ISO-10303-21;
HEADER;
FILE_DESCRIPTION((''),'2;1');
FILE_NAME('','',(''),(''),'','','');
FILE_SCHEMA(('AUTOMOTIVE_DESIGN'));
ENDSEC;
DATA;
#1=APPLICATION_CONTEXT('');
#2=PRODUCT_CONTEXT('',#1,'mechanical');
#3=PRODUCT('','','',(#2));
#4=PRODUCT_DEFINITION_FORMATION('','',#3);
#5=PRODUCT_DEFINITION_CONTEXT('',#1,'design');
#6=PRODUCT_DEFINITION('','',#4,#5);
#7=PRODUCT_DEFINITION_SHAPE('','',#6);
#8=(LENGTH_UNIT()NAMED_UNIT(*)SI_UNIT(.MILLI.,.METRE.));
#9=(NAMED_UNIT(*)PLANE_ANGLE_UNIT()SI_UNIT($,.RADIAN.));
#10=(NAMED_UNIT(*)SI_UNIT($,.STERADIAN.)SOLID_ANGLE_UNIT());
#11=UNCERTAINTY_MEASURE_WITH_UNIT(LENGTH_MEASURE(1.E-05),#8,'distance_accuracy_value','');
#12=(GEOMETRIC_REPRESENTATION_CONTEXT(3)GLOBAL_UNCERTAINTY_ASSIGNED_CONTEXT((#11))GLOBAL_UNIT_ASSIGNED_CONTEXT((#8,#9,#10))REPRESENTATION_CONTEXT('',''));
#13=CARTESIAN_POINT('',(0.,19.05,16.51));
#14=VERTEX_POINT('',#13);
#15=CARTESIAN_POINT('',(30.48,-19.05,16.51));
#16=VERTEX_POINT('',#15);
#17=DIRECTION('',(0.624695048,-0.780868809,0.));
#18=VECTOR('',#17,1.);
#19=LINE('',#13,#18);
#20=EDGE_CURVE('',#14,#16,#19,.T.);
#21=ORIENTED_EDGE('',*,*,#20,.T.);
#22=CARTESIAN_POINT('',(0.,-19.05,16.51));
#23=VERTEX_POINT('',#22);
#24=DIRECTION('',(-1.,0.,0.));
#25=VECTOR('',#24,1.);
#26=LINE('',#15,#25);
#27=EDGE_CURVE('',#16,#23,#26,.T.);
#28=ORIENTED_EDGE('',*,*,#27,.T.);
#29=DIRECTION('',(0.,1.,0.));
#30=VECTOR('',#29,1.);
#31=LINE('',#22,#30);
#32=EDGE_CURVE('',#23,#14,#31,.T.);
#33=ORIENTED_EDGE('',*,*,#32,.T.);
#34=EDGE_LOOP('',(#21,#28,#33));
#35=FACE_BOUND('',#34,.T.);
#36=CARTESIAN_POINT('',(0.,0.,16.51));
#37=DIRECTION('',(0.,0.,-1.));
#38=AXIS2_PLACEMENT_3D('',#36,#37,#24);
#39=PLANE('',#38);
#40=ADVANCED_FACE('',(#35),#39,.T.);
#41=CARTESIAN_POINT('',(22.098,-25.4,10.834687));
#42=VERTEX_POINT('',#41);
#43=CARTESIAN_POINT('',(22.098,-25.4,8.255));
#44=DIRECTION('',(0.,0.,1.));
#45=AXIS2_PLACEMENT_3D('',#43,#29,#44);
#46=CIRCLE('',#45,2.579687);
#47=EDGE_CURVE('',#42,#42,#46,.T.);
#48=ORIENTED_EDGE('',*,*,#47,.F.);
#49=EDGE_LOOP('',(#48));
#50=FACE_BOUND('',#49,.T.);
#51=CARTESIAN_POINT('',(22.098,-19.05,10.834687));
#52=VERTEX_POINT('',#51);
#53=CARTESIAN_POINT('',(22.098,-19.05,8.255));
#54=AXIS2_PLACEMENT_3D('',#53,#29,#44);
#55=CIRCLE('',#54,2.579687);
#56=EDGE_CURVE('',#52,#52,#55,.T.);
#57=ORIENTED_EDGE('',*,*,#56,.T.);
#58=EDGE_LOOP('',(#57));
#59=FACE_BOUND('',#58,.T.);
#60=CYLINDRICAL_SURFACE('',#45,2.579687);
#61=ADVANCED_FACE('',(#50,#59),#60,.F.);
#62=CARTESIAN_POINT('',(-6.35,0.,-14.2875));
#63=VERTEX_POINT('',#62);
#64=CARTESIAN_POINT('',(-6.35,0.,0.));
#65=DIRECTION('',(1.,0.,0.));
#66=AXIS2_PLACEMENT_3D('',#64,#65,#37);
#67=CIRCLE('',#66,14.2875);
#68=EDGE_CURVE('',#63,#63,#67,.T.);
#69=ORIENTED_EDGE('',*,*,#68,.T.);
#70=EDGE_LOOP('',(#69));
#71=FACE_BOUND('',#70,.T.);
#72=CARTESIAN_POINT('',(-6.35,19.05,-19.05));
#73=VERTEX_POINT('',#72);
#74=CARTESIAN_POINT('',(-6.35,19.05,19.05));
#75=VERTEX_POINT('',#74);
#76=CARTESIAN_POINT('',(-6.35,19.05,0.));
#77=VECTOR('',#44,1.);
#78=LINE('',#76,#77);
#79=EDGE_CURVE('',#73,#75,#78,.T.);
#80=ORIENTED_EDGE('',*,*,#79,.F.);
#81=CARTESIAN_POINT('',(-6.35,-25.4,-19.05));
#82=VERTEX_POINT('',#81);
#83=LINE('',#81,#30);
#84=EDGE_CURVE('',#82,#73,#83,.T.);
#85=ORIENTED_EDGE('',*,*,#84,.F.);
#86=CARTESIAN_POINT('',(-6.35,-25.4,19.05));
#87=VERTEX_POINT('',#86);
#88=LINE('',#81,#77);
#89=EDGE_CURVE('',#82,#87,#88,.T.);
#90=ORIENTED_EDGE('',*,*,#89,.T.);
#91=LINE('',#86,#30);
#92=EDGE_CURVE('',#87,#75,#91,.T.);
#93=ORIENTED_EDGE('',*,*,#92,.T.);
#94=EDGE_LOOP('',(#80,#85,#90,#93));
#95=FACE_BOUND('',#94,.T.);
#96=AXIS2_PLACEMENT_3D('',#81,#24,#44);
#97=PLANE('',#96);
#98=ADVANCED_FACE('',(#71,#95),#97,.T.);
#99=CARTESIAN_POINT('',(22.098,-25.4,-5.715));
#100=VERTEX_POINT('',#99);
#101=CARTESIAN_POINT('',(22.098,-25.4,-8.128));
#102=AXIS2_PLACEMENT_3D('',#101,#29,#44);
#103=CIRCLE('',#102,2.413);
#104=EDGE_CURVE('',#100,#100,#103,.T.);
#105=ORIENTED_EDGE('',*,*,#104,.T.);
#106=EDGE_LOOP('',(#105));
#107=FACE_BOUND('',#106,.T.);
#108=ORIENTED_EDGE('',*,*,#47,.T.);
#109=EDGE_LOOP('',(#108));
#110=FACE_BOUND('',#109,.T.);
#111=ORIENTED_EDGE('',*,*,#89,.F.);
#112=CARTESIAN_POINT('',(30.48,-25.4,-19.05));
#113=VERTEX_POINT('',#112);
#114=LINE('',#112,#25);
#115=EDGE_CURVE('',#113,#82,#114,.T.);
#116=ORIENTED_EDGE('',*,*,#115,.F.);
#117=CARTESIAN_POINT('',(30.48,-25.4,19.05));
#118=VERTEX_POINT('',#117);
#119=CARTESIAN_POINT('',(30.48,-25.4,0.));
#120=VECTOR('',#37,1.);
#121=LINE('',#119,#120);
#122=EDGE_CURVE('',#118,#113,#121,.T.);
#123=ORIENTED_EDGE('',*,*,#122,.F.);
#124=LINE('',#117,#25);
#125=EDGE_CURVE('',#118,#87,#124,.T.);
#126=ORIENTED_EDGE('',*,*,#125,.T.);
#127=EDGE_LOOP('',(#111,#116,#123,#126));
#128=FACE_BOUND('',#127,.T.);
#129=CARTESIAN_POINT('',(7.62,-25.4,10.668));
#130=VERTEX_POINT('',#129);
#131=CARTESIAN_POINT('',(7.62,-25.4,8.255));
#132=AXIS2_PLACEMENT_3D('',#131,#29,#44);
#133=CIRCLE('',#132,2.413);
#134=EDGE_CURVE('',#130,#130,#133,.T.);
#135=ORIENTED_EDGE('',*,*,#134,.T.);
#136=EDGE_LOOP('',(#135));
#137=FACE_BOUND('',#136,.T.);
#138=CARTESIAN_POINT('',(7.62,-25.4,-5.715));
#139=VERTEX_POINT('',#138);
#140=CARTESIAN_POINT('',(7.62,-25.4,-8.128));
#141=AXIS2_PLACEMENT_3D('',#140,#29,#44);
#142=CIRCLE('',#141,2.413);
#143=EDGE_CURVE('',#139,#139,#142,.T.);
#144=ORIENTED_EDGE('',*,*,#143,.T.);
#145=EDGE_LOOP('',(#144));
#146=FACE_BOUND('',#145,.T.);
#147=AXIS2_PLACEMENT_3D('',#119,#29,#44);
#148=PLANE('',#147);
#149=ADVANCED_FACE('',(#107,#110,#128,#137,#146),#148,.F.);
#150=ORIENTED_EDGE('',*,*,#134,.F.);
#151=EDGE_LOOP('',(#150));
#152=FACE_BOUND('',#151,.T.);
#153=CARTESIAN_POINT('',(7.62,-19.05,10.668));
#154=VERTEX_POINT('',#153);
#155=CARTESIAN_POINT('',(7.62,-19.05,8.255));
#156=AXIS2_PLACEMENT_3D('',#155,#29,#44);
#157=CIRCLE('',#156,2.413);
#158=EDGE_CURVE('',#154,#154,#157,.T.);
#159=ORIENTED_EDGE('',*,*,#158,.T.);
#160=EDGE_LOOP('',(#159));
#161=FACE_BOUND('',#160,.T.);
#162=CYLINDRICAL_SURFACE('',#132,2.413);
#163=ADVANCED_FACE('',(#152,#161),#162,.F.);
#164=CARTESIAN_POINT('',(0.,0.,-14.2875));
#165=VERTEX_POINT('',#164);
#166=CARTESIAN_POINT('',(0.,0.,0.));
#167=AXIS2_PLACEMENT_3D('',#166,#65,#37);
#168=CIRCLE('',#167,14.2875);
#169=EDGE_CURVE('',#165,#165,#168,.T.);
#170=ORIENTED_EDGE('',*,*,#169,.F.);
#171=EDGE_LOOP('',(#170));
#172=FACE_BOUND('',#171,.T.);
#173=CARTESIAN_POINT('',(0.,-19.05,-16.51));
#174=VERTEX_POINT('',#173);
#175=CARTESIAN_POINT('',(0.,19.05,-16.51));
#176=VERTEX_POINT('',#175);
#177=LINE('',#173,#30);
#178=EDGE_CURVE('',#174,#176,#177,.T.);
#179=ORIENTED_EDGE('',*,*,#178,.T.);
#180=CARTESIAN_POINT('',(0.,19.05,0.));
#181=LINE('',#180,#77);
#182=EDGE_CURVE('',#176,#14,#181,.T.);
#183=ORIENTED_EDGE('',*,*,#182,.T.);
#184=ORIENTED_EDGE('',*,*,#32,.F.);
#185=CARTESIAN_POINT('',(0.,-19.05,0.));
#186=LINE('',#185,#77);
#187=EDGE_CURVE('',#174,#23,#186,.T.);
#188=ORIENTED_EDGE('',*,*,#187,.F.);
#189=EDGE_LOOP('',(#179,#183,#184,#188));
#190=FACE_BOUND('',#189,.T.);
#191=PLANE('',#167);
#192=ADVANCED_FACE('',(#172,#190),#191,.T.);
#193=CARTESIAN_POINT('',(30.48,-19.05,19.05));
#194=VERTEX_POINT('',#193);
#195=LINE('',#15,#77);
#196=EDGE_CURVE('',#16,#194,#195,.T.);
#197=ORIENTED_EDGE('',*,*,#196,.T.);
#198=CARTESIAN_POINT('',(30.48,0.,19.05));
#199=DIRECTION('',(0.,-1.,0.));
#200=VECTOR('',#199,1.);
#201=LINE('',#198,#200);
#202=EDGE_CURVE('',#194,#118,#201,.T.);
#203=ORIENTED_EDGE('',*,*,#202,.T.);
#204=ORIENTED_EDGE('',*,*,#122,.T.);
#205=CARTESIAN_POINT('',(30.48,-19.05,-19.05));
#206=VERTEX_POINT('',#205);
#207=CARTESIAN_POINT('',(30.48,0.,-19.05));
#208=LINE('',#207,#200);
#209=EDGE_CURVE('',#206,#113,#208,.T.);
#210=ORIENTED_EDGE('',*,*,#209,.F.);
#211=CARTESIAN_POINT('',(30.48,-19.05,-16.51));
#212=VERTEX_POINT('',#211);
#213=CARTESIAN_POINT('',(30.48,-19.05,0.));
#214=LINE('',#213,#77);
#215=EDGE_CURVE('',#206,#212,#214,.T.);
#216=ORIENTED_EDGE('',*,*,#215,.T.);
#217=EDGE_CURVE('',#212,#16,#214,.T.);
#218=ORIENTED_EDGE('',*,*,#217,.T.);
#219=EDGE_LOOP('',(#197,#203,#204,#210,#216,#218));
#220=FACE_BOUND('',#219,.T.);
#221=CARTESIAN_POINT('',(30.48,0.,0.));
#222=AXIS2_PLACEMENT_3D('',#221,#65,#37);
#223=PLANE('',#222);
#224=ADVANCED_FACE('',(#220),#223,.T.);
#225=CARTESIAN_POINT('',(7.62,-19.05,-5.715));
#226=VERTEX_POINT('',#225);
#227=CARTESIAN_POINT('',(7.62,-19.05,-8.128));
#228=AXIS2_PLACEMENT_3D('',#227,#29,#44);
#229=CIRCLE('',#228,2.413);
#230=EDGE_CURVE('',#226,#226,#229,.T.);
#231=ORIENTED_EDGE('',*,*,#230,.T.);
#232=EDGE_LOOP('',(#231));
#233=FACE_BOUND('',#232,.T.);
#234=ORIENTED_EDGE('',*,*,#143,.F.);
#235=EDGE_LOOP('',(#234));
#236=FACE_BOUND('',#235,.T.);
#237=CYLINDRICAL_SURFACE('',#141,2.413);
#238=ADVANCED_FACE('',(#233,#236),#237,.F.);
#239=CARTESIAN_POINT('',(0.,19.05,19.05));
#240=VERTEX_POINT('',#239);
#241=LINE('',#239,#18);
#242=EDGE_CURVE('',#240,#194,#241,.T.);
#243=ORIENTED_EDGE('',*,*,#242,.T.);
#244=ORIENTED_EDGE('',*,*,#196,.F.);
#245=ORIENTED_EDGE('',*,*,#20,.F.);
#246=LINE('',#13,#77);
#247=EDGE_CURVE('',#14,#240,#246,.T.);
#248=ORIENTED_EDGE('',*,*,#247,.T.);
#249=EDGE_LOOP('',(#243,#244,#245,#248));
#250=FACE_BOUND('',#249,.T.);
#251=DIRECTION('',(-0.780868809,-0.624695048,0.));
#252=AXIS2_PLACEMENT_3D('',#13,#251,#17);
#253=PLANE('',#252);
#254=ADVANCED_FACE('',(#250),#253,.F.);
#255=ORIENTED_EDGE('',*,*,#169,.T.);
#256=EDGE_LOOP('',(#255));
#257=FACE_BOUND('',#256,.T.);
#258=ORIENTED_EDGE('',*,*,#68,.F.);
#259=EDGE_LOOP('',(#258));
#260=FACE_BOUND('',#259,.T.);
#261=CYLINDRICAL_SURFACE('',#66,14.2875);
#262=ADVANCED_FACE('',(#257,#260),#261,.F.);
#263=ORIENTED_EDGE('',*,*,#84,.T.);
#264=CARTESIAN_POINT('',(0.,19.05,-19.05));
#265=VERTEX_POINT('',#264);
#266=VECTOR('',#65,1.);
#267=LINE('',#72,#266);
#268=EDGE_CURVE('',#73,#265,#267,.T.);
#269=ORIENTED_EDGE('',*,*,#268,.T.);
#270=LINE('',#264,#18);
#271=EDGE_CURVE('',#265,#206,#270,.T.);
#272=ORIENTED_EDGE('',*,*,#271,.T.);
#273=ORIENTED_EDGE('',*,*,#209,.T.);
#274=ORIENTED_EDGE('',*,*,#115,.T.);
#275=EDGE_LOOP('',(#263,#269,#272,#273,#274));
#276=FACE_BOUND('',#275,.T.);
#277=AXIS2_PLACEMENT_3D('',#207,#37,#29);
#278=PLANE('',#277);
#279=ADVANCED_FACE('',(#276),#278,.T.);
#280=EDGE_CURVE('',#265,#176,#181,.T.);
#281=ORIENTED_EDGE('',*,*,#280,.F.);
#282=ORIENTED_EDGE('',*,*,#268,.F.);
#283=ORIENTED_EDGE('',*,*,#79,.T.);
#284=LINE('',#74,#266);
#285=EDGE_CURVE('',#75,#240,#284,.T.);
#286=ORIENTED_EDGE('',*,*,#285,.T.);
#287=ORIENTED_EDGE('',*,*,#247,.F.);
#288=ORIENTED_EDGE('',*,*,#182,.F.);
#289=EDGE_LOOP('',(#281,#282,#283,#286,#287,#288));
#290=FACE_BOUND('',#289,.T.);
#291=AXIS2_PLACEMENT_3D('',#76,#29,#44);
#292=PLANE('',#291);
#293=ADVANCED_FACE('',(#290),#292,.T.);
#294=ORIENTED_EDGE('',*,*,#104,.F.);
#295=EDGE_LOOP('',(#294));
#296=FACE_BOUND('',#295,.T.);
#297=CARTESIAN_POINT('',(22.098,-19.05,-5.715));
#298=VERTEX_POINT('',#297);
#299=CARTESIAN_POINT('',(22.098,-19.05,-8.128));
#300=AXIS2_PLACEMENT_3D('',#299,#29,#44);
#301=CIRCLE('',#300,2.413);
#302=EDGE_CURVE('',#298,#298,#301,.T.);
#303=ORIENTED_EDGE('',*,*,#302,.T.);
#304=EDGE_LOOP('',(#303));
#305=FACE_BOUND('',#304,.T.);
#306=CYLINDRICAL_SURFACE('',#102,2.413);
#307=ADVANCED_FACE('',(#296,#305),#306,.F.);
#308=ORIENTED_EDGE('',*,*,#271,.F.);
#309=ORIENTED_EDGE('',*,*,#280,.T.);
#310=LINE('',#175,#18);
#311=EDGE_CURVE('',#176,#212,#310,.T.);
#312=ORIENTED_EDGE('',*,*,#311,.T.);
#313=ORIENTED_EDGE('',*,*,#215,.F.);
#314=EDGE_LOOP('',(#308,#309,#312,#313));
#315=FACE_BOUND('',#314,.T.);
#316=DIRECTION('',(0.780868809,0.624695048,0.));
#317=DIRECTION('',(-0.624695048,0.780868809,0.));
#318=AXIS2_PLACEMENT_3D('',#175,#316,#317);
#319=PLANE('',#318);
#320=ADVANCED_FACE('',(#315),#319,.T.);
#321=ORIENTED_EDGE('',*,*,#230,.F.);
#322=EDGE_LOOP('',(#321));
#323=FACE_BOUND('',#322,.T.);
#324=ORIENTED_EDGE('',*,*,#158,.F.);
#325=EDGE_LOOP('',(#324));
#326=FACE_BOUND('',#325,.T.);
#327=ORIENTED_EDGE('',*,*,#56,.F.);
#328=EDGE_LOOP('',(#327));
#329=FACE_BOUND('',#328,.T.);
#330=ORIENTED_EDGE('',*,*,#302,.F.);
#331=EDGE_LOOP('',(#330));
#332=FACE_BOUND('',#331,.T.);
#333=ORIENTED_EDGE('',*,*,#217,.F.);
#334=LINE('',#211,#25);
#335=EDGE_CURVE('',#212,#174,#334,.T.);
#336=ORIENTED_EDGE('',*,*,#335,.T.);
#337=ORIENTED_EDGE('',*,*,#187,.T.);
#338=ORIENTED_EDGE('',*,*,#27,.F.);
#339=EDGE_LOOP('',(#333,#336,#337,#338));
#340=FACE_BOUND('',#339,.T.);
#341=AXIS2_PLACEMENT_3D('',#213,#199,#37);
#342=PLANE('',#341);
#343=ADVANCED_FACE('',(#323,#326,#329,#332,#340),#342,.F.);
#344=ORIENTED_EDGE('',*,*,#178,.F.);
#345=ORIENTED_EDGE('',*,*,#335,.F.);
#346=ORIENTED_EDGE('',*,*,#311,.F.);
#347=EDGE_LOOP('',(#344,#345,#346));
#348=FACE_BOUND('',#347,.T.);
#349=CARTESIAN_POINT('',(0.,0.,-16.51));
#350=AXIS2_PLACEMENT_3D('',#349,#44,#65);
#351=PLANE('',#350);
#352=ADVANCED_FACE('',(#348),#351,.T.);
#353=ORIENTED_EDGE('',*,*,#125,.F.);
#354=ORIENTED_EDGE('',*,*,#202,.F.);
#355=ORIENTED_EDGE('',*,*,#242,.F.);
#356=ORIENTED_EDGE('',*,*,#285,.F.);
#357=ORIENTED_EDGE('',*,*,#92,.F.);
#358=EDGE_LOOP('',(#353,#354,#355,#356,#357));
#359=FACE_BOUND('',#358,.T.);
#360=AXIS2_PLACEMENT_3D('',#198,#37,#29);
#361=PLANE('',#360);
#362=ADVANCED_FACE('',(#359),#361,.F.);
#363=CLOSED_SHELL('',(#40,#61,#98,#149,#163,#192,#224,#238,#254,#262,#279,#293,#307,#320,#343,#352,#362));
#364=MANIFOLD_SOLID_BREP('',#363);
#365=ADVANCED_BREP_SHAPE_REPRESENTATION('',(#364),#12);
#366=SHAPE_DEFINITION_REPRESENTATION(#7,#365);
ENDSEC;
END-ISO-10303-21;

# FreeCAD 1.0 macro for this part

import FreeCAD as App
import Part
import Sketcher
Q = App.Units.Quantity


def add_polygon(sketch, points):
    """Adds a closed chain of lines whose ends are joined by coincident constraints."""
    first, n = sketch.GeometryCount, len(points)
    for a, b in zip(points, points[1:] + points[:1]):
        sketch.addGeometry(Part.LineSegment(App.Vector(*a, 0), App.Vector(*b, 0)), False)
    for i in range(n):
        sketch.addConstraint(Sketcher.Constraint("Coincident", first + i, 2, first + (i + 1) % n, 1))

doc = App.newDocument("Part")
body = doc.addObject("PartDesign::Body", "Body")

sketch1 = body.newObject("Sketcher::SketchObject", "Sketch")
sketch1.AttachmentSupport = (doc.getObject("YZ_Plane"), [""])
sketch1.MapMode = "FlatFace"
add_polygon(sketch1, [(-19, 19), (-25, 19), (-25, -19), (-19, -19)])
sketch1.addConstraint(Sketcher.Constraint("Horizontal", 0))
sketch1.addConstraint(Sketcher.Constraint("Vertical", 1))
sketch1.addConstraint(Sketcher.Constraint("Horizontal", 2))
sketch1.addConstraint(Sketcher.Constraint("Vertical", 3))
sketch1.addConstraint(Sketcher.Constraint("DistanceY", 1, 2, 1, 1, Q("1.5 in")))
sketch1.addConstraint(Sketcher.Constraint("DistanceX", 0, 2, -1, 1, Q("1 in")))
sketch1.addConstraint(Sketcher.Constraint("DistanceX", 0, 2, 0, 1, Q("0.25 in")))
sketch1.addConstraint(Sketcher.Constraint("DistanceY", -1, 1, 0, 2, Q("0.75 in")))
pad1 = body.newObject("PartDesign::Pad", "Pad")
pad1.Profile = sketch1
pad1.Length = Q("1.2 in")
body2 = doc.addObject("PartDesign::Body", "Body001")

sketch2 = body2.newObject("Sketcher::SketchObject", "Sketch001")
sketch2.AttachmentSupport = (doc.getObject("YZ_Plane001"), [""])
sketch2.MapMode = "FlatFace"
add_polygon(sketch2, [(19, 19), (-19, 19), (-19, -19), (19, -19)])
sketch2.addGeometry(Part.Circle(App.Vector(0, 0, 0), App.Vector(0, 0, 1), 14), False)
sketch2.addConstraint(Sketcher.Constraint("Horizontal", 0))
sketch2.addConstraint(Sketcher.Constraint("Vertical", 1))
sketch2.addConstraint(Sketcher.Constraint("Horizontal", 2))
sketch2.addConstraint(Sketcher.Constraint("Vertical", 3))
sketch2.addConstraint(Sketcher.Constraint("Coincident", 4, 3, -1, 1))
sketch2.addConstraint(Sketcher.Constraint("Symmetric", 0, 2, 2, 2, -1, 1))
sketch2.addConstraint(Sketcher.Constraint("Equal", 2, 1))
sketch2.addConstraint(Sketcher.Constraint("Diameter", 4, Q("1.125 in")))
sketch2.addConstraint(Sketcher.Constraint("DistanceX", 0, 2, 0, 1, Q("1.5 in")))
pad2 = body2.newObject("PartDesign::Pad", "Pad001")
pad2.Profile = sketch2
pad2.Length = Q("0.25 in")
pad2.Reversed = True
body.AllowCompound = True
doc.recompute()

boolean = body.newObject("PartDesign::Boolean", "Boolean")
boolean.Type = "Fuse"
boolean.addObjects([body2])

sketch3 = body.newObject("Sketcher::SketchObject", "Sketch002")
sketch3.AttachmentSupport = (doc.getObject("XZ_Plane"), [""])
sketch3.MapMode = "FlatFace"
sketch3.AttachmentOffset = App.Placement(App.Vector(0, 0, 0.75 * 25.4), App.Rotation())
add_polygon(sketch3, [(-6, 19), (-6, -19), (0, -19), (0, 19)])
sketch3.addConstraint(Sketcher.Constraint("Vertical", 0))
sketch3.addConstraint(Sketcher.Constraint("Horizontal", 1))
sketch3.addConstraint(Sketcher.Constraint("Vertical", 2))
sketch3.addConstraint(Sketcher.Constraint("Horizontal", 3))
sketch3.addConstraint(Sketcher.Constraint("Symmetric", 1, 2, 2, 2, -1, 1))
sketch3.addConstraint(Sketcher.Constraint("DistanceY", 0, 2, 0, 1, Q("1.5 in")))
sketch3.addConstraint(Sketcher.Constraint("DistanceX", 1, 1, 1, 2, Q("0.25 in")))
pad3 = body.newObject("PartDesign::Pad", "Pad002")
pad3.Profile = sketch3
pad3.Length = Q("0.25 in")

sketch4 = body.newObject("Sketcher::SketchObject", "Sketch003")
sketch4.AttachmentSupport = (doc.getObject("XY_Plane"), [""])
sketch4.MapMode = "FlatFace"
sketch4.AttachmentOffset = App.Placement(App.Vector(0, 0, 0.75 * 25.4), App.Rotation())
add_polygon(sketch4, [(30, -19), (0, 19), (0, -19)])
sketch4.addConstraint(Sketcher.Constraint("Vertical", 1))
sketch4.addConstraint(Sketcher.Constraint("Horizontal", 2))
sketch4.addConstraint(Sketcher.Constraint("Symmetric", 0, 2, 1, 2, -1, 1))
sketch4.addConstraint(Sketcher.Constraint("DistanceX", 2, 1, 2, 2, Q("1.2 in")))
sketch4.addConstraint(Sketcher.Constraint("DistanceY", 1, 2, 1, 1, Q("1.5 in")))
pad4 = body.newObject("PartDesign::Pad", "Pad003")
pad4.Profile = sketch4
pad4.Length = Q("0.1 in")
pad4.Reversed = True

sketch5 = body.newObject("Sketcher::SketchObject", "Sketch004")
sketch5.AttachmentSupport = (doc.getObject("XY_Plane"), [""])
sketch5.MapMode = "FlatFace"
sketch5.AttachmentOffset = App.Placement(App.Vector(0, 0, -0.75 * 25.4), App.Rotation())
add_polygon(sketch5, [(0, 19), (30, -19), (0, -19)])
sketch5.addConstraint(Sketcher.Constraint("Horizontal", 1))
sketch5.addConstraint(Sketcher.Constraint("Vertical", 2))
sketch5.addConstraint(Sketcher.Constraint("Symmetric", 1, 2, 2, 2, -1, 1))
sketch5.addConstraint(Sketcher.Constraint("DistanceX", 1, 2, 1, 1, Q("1.2 in")))
sketch5.addConstraint(Sketcher.Constraint("DistanceY", 2, 1, 2, 2, Q("1.5 in")))
pad5 = body.newObject("PartDesign::Pad", "Pad004")
pad5.Profile = sketch5
pad5.Length = Q("0.1 in")

sketch6 = body.newObject("Sketcher::SketchObject", "Sketch005")
sketch6.AttachmentSupport = (doc.getObject("XZ_Plane"), [""])
sketch6.MapMode = "FlatFace"
sketch6.AttachmentOffset = App.Placement(App.Vector(0, 0, 0.75 * 25.4), App.Rotation())
sketch6.addGeometry(Part.Circle(App.Vector(7.6, 8.3, 0), App.Vector(0, 0, 1), 2.4), False)
sketch6.addGeometry(Part.Circle(App.Vector(22.1, 8.3, 0), App.Vector(0, 0, 1), 2.6), False)
sketch6.addGeometry(Part.Circle(App.Vector(22.1, -8.1, 0), App.Vector(0, 0, 1), 2.4), False)
sketch6.addGeometry(Part.Circle(App.Vector(7.6, -8.1, 0), App.Vector(0, 0, 1), 2.4), False)
sketch6.addConstraint(Sketcher.Constraint("Equal", 0, 2))
sketch6.addConstraint(Sketcher.Constraint("Equal", 2, 3))
sketch6.addConstraint(Sketcher.Constraint("Horizontal", 0, 3, 1, 3))
sketch6.addConstraint(Sketcher.Constraint("Horizontal", 2, 3, 3, 3))
sketch6.addConstraint(Sketcher.Constraint("Vertical", 1, 3, 2, 3))
sketch6.addConstraint(Sketcher.Constraint("Vertical", 0, 3, 3, 3))
sketch6.addConstraint(Sketcher.Constraint("Diameter", 0, Q("0.19 in")))
sketch6.addConstraint(Sketcher.Constraint("Diameter", 1, Q("0.203125 in")))
sketch6.addConstraint(Sketcher.Constraint("DistanceX", -1, 1, 0, 3, Q("0.3 in")))
sketch6.addConstraint(Sketcher.Constraint("DistanceX", -1, 1, 1, 3, Q("0.87 in")))
sketch6.addConstraint(Sketcher.Constraint("DistanceY", 2, 3, -1, 1, Q("0.32 in")))
sketch6.addConstraint(Sketcher.Constraint("DistanceY", -1, 1, 0, 3, Q("0.325 in")))
pocket1 = body.newObject("PartDesign::Pocket", "Pocket")
pocket1.Profile = sketch6
pocket1.Type = "ThroughAll"
pocket1.Reversed = True

doc.recompute()
